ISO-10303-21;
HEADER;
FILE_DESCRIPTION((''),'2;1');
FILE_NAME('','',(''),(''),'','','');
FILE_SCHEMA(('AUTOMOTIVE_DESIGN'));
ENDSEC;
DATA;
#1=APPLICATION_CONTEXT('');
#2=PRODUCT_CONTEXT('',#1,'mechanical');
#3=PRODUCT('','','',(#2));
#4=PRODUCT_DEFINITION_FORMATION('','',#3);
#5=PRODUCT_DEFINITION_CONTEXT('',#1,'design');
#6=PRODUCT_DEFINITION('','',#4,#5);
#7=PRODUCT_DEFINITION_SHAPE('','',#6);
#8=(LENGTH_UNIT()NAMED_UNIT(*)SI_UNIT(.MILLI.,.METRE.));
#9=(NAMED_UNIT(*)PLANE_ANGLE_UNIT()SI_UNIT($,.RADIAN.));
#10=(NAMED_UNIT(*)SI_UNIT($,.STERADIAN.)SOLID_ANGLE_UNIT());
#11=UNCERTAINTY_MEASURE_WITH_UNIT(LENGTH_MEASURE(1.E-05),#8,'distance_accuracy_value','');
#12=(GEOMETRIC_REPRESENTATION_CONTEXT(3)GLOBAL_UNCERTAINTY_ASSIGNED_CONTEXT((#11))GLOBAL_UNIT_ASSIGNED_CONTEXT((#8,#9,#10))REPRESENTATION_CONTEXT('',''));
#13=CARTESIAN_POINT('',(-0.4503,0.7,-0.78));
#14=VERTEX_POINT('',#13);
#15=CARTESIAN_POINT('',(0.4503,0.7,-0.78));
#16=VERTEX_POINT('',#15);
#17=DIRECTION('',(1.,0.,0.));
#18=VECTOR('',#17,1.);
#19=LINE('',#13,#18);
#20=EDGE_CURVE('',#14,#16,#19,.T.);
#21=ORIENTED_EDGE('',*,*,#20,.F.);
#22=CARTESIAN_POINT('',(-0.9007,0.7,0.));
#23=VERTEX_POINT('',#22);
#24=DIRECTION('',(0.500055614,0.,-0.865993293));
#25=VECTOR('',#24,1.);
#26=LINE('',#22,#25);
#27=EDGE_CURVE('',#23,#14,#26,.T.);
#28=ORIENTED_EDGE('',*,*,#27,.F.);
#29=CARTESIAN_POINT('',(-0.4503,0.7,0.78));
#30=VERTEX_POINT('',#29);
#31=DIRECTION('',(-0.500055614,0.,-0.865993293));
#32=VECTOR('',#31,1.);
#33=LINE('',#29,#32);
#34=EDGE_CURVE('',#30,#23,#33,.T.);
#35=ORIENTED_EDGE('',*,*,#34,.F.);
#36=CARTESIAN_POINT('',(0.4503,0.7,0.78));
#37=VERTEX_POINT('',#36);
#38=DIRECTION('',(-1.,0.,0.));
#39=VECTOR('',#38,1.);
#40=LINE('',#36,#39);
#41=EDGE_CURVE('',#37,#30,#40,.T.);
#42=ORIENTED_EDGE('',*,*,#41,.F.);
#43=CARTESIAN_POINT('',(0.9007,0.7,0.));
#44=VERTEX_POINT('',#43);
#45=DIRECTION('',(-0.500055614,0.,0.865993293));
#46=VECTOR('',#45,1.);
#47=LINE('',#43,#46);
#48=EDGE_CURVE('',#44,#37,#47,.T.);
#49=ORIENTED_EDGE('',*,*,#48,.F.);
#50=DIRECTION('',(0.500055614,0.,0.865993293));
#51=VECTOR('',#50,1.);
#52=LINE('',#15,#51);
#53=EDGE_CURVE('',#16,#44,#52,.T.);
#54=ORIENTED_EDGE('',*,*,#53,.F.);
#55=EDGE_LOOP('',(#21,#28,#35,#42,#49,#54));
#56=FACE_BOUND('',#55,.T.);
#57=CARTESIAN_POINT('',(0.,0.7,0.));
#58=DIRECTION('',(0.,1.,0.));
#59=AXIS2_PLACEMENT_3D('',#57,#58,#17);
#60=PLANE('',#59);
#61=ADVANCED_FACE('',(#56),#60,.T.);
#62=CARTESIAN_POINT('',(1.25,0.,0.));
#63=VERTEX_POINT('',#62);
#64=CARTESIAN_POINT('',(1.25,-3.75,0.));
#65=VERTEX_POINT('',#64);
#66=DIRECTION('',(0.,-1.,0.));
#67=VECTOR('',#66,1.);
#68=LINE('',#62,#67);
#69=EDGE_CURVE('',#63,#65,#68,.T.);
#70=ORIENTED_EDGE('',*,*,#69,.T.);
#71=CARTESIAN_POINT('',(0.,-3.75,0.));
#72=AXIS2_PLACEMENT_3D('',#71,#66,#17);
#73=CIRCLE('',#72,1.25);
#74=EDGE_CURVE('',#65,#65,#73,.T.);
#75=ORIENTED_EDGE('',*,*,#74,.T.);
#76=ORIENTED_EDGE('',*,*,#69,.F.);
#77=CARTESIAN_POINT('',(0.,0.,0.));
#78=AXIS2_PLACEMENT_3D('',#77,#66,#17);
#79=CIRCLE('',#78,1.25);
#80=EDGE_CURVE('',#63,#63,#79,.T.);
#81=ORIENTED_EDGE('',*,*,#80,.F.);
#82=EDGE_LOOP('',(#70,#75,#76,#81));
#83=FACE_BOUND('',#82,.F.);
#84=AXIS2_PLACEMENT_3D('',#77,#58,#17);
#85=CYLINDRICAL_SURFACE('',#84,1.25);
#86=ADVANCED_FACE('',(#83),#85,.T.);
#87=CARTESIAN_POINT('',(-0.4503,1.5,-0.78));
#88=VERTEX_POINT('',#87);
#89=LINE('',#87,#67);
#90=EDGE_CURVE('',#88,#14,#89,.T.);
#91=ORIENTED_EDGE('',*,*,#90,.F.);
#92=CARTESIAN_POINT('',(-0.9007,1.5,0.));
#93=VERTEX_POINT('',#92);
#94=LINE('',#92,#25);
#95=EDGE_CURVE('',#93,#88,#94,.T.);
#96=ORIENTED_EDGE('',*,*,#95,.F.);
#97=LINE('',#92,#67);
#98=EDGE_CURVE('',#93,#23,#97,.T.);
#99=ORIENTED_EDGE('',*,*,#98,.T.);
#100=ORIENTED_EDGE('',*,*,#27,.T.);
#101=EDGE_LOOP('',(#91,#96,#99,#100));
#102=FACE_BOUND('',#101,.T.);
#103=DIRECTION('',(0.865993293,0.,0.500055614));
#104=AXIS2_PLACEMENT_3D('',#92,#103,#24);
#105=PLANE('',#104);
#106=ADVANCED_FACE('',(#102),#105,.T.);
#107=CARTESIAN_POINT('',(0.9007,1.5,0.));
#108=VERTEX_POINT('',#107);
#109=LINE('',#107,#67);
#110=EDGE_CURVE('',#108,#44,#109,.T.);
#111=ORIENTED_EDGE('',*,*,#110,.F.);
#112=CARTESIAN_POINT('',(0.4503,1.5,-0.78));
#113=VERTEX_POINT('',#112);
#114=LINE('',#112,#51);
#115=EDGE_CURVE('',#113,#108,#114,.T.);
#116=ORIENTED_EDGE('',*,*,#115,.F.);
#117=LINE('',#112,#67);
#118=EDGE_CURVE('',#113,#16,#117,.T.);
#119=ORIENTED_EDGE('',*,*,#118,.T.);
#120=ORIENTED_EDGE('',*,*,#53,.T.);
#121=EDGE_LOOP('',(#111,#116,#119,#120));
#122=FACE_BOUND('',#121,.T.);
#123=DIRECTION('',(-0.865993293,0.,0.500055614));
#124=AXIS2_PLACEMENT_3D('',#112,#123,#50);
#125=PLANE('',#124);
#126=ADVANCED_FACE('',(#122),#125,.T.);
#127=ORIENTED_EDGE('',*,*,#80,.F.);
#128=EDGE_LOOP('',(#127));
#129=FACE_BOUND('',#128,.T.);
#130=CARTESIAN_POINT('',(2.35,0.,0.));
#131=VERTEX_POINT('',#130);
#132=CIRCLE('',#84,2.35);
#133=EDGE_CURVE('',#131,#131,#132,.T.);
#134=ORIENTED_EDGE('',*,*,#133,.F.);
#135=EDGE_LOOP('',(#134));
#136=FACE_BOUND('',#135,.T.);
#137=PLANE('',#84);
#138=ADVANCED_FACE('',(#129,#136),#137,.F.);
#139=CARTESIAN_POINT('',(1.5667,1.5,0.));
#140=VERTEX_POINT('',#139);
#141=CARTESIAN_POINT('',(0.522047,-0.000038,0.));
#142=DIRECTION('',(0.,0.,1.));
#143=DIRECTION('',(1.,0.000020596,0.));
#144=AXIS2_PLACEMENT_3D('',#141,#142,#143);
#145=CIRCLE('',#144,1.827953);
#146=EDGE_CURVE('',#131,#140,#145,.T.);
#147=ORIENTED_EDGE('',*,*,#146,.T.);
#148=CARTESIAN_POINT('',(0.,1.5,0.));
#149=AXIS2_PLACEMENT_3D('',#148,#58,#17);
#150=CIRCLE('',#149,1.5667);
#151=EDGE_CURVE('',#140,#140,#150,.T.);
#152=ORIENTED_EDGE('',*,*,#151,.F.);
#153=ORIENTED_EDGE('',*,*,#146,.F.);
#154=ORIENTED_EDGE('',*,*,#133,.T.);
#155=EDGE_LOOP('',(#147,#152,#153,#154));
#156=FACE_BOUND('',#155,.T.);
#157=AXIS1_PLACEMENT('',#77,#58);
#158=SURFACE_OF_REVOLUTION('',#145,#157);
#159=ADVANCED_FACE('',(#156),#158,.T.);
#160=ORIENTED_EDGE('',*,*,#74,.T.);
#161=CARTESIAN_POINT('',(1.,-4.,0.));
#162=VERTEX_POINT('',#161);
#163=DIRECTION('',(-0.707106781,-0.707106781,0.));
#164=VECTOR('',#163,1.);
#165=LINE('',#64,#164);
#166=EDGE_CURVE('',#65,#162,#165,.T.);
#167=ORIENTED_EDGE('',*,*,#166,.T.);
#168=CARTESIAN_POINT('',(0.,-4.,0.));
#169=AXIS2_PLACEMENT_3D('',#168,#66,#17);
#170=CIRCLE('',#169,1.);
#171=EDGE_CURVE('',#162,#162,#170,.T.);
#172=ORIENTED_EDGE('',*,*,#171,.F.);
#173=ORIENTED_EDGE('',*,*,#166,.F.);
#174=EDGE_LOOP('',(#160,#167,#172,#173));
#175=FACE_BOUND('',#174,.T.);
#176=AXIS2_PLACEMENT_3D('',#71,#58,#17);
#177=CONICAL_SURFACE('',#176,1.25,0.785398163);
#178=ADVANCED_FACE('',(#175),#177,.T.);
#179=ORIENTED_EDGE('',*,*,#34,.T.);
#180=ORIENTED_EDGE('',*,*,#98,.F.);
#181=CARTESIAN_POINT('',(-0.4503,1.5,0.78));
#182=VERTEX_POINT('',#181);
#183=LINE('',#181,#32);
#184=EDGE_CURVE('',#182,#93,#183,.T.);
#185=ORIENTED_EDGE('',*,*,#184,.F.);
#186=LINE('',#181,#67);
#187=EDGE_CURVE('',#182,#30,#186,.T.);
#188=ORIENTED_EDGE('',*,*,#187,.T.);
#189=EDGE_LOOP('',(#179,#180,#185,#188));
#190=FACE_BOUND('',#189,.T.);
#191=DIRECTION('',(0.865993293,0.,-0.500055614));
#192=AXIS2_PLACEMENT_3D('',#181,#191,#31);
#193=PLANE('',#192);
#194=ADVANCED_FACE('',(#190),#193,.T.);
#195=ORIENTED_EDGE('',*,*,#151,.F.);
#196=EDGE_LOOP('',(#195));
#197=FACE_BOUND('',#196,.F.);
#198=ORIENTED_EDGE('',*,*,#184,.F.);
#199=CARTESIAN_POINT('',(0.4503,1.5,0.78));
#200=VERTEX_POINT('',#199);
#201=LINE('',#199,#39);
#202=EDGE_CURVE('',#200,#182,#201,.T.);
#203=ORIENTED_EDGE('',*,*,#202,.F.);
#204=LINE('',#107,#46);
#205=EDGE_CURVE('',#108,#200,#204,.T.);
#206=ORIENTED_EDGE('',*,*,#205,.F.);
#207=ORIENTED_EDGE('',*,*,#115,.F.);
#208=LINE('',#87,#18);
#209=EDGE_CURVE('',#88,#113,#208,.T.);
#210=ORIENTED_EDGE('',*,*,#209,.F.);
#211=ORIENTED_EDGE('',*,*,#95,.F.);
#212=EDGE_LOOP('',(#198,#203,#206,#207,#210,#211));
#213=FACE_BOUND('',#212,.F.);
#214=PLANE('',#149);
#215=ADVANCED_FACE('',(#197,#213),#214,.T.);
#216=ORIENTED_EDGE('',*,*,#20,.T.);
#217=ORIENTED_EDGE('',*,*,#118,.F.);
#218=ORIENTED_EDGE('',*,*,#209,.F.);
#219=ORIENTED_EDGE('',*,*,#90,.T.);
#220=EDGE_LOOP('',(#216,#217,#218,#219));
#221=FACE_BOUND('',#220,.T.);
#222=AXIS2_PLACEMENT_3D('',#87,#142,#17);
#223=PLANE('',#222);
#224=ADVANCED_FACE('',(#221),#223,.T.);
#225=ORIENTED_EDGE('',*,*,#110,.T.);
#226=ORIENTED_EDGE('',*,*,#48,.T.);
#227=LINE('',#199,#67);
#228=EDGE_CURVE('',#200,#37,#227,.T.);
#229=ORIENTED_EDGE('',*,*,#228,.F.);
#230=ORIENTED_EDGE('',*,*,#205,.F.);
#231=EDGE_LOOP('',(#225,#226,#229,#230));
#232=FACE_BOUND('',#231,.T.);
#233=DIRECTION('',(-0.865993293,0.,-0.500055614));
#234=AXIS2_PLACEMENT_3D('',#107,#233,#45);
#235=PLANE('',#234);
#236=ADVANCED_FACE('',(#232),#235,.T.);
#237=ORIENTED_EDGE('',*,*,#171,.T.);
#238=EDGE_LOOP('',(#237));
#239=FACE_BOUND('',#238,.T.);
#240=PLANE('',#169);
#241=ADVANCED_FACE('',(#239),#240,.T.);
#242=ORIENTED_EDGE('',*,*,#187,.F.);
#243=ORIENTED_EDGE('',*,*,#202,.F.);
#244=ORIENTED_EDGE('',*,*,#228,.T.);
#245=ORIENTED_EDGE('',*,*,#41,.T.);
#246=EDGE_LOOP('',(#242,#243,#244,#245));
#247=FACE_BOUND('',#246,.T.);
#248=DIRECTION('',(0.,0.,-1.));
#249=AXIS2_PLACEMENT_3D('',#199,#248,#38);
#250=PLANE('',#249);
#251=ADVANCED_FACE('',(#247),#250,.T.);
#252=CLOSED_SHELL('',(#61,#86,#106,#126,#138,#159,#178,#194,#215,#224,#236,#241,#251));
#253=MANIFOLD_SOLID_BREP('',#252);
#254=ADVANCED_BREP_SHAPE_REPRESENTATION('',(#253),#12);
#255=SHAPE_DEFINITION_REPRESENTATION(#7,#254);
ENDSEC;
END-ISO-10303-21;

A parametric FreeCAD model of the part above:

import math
import FreeCAD as App
import Part
import Sketcher
from FreeCAD import Vector
Q = App.Units.Quantity


def edges_at(feature, points):
    """Names of the edges that pass closest to the given points."""
    edges = feature.Shape.Edges
    near = lambda p: min(range(len(edges)), key=lambda i: edges[i].distToShape(Part.Vertex(*p))[0])
    return sorted({f"Edge{near(p) + 1}" for p in points})


def add_polygon(sketch, points):
    """Adds a closed chain of lines whose ends are joined by coincident constraints."""
    first, n = sketch.GeometryCount, len(points)
    for a, b in zip(points, points[1:] + points[:1]):
        sketch.addGeometry(Part.LineSegment(App.Vector(*a, 0), App.Vector(*b, 0)), False)
    for i in range(n):
        sketch.addConstraint(Sketcher.Constraint("Coincident", first + i, 2, first + (i + 1) % n, 1))

doc = App.newDocument("Part")
body = doc.addObject("PartDesign::Body", "Body")

# Sketch on XY plane
sketch1 = body.newObject("Sketcher::SketchObject", "Sketch")
sketch1.AttachmentSupport = (doc.getObject("XY_Plane"), [""])
sketch1.MapMode = "FlatFace"
sketch1.addGeometry([
    Part.LineSegment(Vector(0, 1.5, 0), Vector(0, 0, 0)),
    Part.LineSegment(Vector(0, 0, 0), Vector(2.4, 0, 0)),
    Part.ArcOfCircle(Part.Circle(Vector(0.5, 0, 0), Vector(0, 0, 1), 1.8), math.radians(0), math.radians(55)),
    Part.LineSegment(Vector(1.6, 1.5, 0), Vector(0, 1.5, 0)),
], False)
sketch1.addConstraint([
    Sketcher.Constraint("Coincident", 0, 2, 1, 1),
    Sketcher.Constraint("Coincident", 1, 2, 2, 1),
    Sketcher.Constraint("Coincident", 2, 2, 3, 1),
    Sketcher.Constraint("Coincident", 3, 2, 0, 1),
    Sketcher.Constraint("Vertical", 0),
    Sketcher.Constraint("Horizontal", 1),
    Sketcher.Constraint("Horizontal", 3),
    Sketcher.Constraint("Coincident", 0, 2, -1, 1),
    Sketcher.Constraint("PointOnObject", 2, 3, -1),
    Sketcher.Constraint("DistanceY", 0, 2, 0, 1, Q("1.5 mm")),
    Sketcher.Constraint("DistanceX", 1, 1, 1, 2, Q("2.35 mm")),
    Sketcher.Constraint("DistanceX", 3, 2, 3, 1, Q("1.5667 mm")),
])
revolution = body.newObject("PartDesign::Revolution", "Revolution")
revolution.Profile = sketch1
revolution.ReferenceAxis = (sketch1, ["V_Axis"])
revolution.Angle = 360

# Sketch on XZ plane
sketch2 = body.newObject("Sketcher::SketchObject", "Sketch001")
sketch2.AttachmentSupport = (doc.getObject("XZ_Plane"), [""])
sketch2.MapMode = "FlatFace"
sketch2.addGeometry(Part.Circle(Vector(0, 0, 0), Vector(0, 0, 1), 1.2), False)
sketch2.addConstraint([
    Sketcher.Constraint("Coincident", 0, 3, -1, 1),
    Sketcher.Constraint("Diameter", 0, Q("2.5 mm")),
])
pad1 = body.newObject("PartDesign::Pad", "Pad")
pad1.Profile = sketch2
pad1.Length = 4
doc.recompute()

chamfer = body.newObject("PartDesign::Chamfer", "Chamfer")
chamfer.Base = (pad1, edges_at(pad1, [(-1.25, -4, 0)]))
chamfer.Size = 0.25

# Sketch on XZ plane
sketch3 = body.newObject("Sketcher::SketchObject", "Sketch002")
sketch3.AttachmentSupport = (doc.getObject("XZ_Plane"), [""])
sketch3.MapMode = "FlatFace"
sketch3.AttachmentOffset = App.Placement(Vector(0, 0, -1.5), App.Rotation())
add_polygon(sketch3, [(0.9, 0), (0.5, -0.8), (-0.5, -0.8), (-0.9, 0), (-0.5, 0.8), (0.5, 0.8)])  # lines 0-5
sketch3.addConstraint([
    Sketcher.Constraint("Horizontal", 1),
    Sketcher.Constraint("Horizontal", 4),
    Sketcher.Constraint("Symmetric", 0, 2, 3, 2, -1, 1),
    Sketcher.Constraint("Symmetric", 2, 2, 5, 2, -1, 1),
    Sketcher.Constraint("PointOnObject", 2, 2, -1),
    Sketcher.Constraint("Parallel", 2, 5),
    Sketcher.Constraint("Vertical", 1, 2, 3, 2),
    Sketcher.Constraint("DistanceY", 1, 2, 3, 2, Q("1.56 mm")),
    Sketcher.Constraint("DistanceX", 1, 2, 1, 1, Q("0.9006 mm")),
    Sketcher.Constraint("DistanceX", 2, 2, 0, 2, Q("1.351 mm")),
])
pocket1 = body.newObject("PartDesign::Pocket", "Pocket")
pocket1.Profile = sketch3
pocket1.Length = 0.8
pocket1.Reversed = True

doc.recompute()
